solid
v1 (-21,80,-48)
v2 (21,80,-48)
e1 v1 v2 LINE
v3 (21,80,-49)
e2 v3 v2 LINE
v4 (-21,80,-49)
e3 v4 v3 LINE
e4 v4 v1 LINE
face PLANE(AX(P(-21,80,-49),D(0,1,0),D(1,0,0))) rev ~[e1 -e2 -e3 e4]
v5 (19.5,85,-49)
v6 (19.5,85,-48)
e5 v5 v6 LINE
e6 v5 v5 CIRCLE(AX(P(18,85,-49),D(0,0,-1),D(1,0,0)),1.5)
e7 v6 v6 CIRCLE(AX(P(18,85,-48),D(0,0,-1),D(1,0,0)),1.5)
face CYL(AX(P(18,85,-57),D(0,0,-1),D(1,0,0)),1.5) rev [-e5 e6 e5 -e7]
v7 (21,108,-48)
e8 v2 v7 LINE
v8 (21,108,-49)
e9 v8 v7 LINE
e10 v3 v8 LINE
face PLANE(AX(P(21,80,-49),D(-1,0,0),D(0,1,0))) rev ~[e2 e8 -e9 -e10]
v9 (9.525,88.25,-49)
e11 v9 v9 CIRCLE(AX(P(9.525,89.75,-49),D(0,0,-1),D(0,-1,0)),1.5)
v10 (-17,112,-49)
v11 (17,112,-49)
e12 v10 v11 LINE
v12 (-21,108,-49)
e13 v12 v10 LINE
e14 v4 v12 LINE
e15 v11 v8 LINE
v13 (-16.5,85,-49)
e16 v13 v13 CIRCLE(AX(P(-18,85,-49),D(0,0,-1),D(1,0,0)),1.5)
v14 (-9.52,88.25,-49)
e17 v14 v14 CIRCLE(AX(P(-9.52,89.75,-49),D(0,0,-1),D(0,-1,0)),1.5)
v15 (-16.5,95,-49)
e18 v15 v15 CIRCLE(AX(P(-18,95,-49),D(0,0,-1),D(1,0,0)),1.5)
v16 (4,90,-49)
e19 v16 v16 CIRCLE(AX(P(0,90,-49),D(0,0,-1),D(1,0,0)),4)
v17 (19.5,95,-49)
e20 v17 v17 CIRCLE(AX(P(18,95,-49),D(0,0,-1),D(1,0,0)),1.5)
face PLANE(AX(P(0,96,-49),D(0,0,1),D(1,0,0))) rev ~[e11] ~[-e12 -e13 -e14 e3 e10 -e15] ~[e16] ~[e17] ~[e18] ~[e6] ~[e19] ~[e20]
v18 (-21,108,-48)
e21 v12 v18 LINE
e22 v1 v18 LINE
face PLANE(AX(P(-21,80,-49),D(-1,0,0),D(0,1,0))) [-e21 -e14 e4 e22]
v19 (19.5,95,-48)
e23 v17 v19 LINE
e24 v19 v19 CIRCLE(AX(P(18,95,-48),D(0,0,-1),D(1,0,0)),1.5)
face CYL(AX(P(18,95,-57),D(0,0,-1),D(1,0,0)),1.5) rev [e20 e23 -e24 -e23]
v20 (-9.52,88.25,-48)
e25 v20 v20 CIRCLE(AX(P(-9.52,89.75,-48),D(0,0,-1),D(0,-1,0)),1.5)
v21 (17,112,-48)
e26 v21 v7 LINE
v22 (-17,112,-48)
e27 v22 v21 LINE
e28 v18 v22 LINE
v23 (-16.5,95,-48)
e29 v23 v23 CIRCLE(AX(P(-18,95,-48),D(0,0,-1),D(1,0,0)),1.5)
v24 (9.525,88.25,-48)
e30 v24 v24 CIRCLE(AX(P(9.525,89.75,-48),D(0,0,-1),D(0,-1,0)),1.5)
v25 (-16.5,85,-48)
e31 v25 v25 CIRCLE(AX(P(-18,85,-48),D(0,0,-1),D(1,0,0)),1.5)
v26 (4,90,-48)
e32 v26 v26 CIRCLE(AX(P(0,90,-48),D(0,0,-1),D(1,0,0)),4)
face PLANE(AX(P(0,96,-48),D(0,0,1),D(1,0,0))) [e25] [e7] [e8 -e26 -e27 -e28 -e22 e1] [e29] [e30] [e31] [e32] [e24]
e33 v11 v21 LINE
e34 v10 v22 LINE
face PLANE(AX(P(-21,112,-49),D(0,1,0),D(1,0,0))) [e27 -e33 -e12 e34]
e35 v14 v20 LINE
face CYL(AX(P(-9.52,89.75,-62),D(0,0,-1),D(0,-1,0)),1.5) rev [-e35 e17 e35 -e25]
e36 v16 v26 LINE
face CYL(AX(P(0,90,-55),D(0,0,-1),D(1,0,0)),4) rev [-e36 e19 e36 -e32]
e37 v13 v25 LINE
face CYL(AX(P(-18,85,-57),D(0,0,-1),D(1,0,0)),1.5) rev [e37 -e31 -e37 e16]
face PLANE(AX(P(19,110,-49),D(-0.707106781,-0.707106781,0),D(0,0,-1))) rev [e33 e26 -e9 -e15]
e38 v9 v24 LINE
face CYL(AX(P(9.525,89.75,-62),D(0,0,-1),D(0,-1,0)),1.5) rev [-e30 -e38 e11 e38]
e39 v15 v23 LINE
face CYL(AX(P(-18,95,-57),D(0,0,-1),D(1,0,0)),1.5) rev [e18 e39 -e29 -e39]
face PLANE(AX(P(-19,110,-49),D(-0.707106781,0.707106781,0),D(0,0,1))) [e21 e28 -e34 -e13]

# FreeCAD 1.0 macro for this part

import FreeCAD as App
import Part
import Sketcher
Q = App.Units.Quantity


def edges_at(feature, points):
    """Names of the edges that pass closest to the given points."""
    edges = feature.Shape.Edges
    near = lambda p: min(range(len(edges)), key=lambda i: edges[i].distToShape(Part.Vertex(*p))[0])
    return sorted({f"Edge{near(p) + 1}" for p in points})

doc = App.newDocument("Part")
body = doc.addObject("PartDesign::Body", "Body")

sketch1 = body.newObject("Sketcher::SketchObject", "Sketch")
sketch1.AttachmentSupport = (doc.getObject("XZ_Plane"), [""])
sketch1.MapMode = "FlatFace"
sketch1.AttachmentOffset = App.Placement(App.Vector(0, 0, -114), App.Rotation())
sketch1.addGeometry(Part.Circle(App.Vector(15.75, 58.525, 0), App.Vector(0, 0, 1), 1.5), False)
sketch1.addConstraint(Sketcher.Constraint("Diameter", 0, Q("3 mm")))
sketch1.addConstraint(Sketcher.Constraint("DistanceX", -1, 1, 0, 3, Q("15.75 mm")))
sketch1.addConstraint(Sketcher.Constraint("DistanceY", -1, 1, 0, 3, Q("58.525 mm")))
pad1 = body.newObject("PartDesign::Pad", "Pad")
pad1.Profile = sketch1
pad1.Length = 20
pad1.Reversed = True
body2 = doc.addObject("PartDesign::Body", "Body001")
body2.AllowCompound = True

sketch2 = body2.newObject("Sketcher::SketchObject", "Sketch001")
sketch2.AttachmentSupport = (doc.getObject("XZ_Plane001"), [""])
sketch2.MapMode = "FlatFace"
sketch2.AttachmentOffset = App.Placement(App.Vector(0, 0, -114), App.Rotation())
sketch2.addGeometry(Part.Circle(App.Vector(15.75, 39.48, 0), App.Vector(0, 0, 1), 1.5), False)
sketch2.addConstraint(Sketcher.Constraint("Diameter", 0, Q("3 mm")))
sketch2.addConstraint(Sketcher.Constraint("DistanceX", -1, 1, 0, 3, Q("15.75 mm")))
sketch2.addConstraint(Sketcher.Constraint("DistanceY", -1, 1, 0, 3, Q("39.48 mm")))
pad2 = body2.newObject("PartDesign::Pad", "Pad001")
pad2.Profile = sketch2
pad2.Length = 20
pad2.Reversed = True
doc.recompute()

boolean = body2.newObject("PartDesign::Boolean", "Boolean")
boolean.Type = "Fuse"
boolean.addObjects([body])
body3 = doc.addObject("PartDesign::Body", "Body002")
body3.AllowCompound = True
doc.recompute()

body2.Placement = App.Placement(App.Vector(0, 0, 0), App.Rotation(App.Vector(1, 0, 0), 90))
boolean2 = body3.newObject("PartDesign::Boolean", "Boolean001")
boolean2.Type = "Fuse"
boolean2.addObjects([body2])
body4 = doc.addObject("PartDesign::Body", "Body003")
body4.AllowCompound = True
doc.recompute()

body3.Placement = App.Placement(App.Vector(-49, 0, -96), App.Rotation(App.Vector(0, 0, 1), 90))
boolean3 = body4.newObject("PartDesign::Boolean", "Boolean002")
boolean3.Type = "Fuse"
boolean3.addObjects([body3])
body5 = doc.addObject("PartDesign::Body", "Body004")
body5.AllowCompound = True
doc.recompute()

body4.Placement = App.Placement(App.Vector(0, 74, -80), App.Rotation(App.Vector(0, 0, 1), 0))
boolean4 = body5.newObject("PartDesign::Boolean", "Boolean003")
boolean4.Type = "Fuse"
boolean4.addObjects([body4])
body6 = doc.addObject("PartDesign::Body", "Body005")

sketch3 = body6.newObject("Sketcher::SketchObject", "Sketch002")
sketch3.AttachmentSupport = (doc.getObject("XY_Plane005"), [""])
sketch3.MapMode = "FlatFace"
sketch3.AttachmentOffset = App.Placement(App.Vector(0, 0, -57), App.Rotation())
sketch3.addGeometry(Part.Circle(App.Vector(18, 85, 0), App.Vector(0, 0, 1), 1.5), False)
sketch3.addConstraint(Sketcher.Constraint("Diameter", 0, Q("3 mm")))
sketch3.addConstraint(Sketcher.Constraint("DistanceX", -1, 1, 0, 3, Q("18 mm")))
sketch3.addConstraint(Sketcher.Constraint("DistanceY", -1, 1, 0, 3, Q("85 mm")))
pad3 = body6.newObject("PartDesign::Pad", "Pad002")
pad3.Profile = sketch3
pad3.Length = 60
body7 = doc.addObject("PartDesign::Body", "Body006")

sketch4 = body7.newObject("Sketcher::SketchObject", "Sketch003")
sketch4.AttachmentSupport = (doc.getObject("XY_Plane006"), [""])
sketch4.MapMode = "FlatFace"
sketch4.AttachmentOffset = App.Placement(App.Vector(0, 0, -57), App.Rotation())
sketch4.addGeometry(Part.Circle(App.Vector(-18, 85, 0), App.Vector(0, 0, 1), 1.5), False)
sketch4.addConstraint(Sketcher.Constraint("Diameter", 0, Q("3 mm")))
sketch4.addConstraint(Sketcher.Constraint("DistanceX", 0, 3, -1, 1, Q("18 mm")))
sketch4.addConstraint(Sketcher.Constraint("DistanceY", -1, 1, 0, 3, Q("85 mm")))
pad4 = body7.newObject("PartDesign::Pad", "Pad003")
pad4.Profile = sketch4
pad4.Length = 60
body8 = doc.addObject("PartDesign::Body", "Body007")

sketch5 = body8.newObject("Sketcher::SketchObject", "Sketch004")
sketch5.AttachmentSupport = (doc.getObject("XY_Plane007"), [""])
sketch5.MapMode = "FlatFace"
sketch5.AttachmentOffset = App.Placement(App.Vector(0, 0, -57), App.Rotation())
sketch5.addGeometry(Part.Circle(App.Vector(-18, 95, 0), App.Vector(0, 0, 1), 1.5), False)
sketch5.addConstraint(Sketcher.Constraint("Diameter", 0, Q("3 mm")))
sketch5.addConstraint(Sketcher.Constraint("DistanceX", 0, 3, -1, 1, Q("18 mm")))
sketch5.addConstraint(Sketcher.Constraint("DistanceY", -1, 1, 0, 3, Q("95 mm")))
pad5 = body8.newObject("PartDesign::Pad", "Pad004")
pad5.Profile = sketch5
pad5.Length = 60
body9 = doc.addObject("PartDesign::Body", "Body008")
body9.AllowCompound = True

sketch6 = body9.newObject("Sketcher::SketchObject", "Sketch005")
sketch6.AttachmentSupport = (doc.getObject("XY_Plane008"), [""])
sketch6.MapMode = "FlatFace"
sketch6.AttachmentOffset = App.Placement(App.Vector(0, 0, -57), App.Rotation())
sketch6.addGeometry(Part.Circle(App.Vector(18, 95, 0), App.Vector(0, 0, 1), 1.5), False)
sketch6.addConstraint(Sketcher.Constraint("Diameter", 0, Q("3 mm")))
sketch6.addConstraint(Sketcher.Constraint("DistanceX", -1, 1, 0, 3, Q("18 mm")))
sketch6.addConstraint(Sketcher.Constraint("DistanceY", -1, 1, 0, 3, Q("95 mm")))
pad6 = body9.newObject("PartDesign::Pad", "Pad005")
pad6.Profile = sketch6
pad6.Length = 60
doc.recompute()

boolean5 = body9.newObject("PartDesign::Boolean", "Boolean004")
boolean5.Type = "Fuse"
boolean5.addObjects([body6])
doc.recompute()

boolean6 = body9.newObject("PartDesign::Boolean", "Boolean005")
boolean6.Type = "Fuse"
boolean6.addObjects([body7])
doc.recompute()

boolean7 = body9.newObject("PartDesign::Boolean", "Boolean006")
boolean7.Type = "Fuse"
boolean7.addObjects([body8])
body10 = doc.addObject("PartDesign::Body", "Body009")

sketch7 = body10.newObject("Sketcher::SketchObject", "Sketch006")
sketch7.AttachmentSupport = (doc.getObject("XY_Plane009"), [""])
sketch7.MapMode = "FlatFace"
sketch7.AttachmentOffset = App.Placement(App.Vector(0, 0, -55), App.Rotation())
sketch7.addGeometry(Part.Circle(App.Vector(0, 90, 0), App.Vector(0, 0, 1), 4), False)
sketch7.addConstraint(Sketcher.Constraint("PointOnObject", 0, 3, -2))
sketch7.addConstraint(Sketcher.Constraint("Diameter", 0, Q("8 mm")))
sketch7.addConstraint(Sketcher.Constraint("DistanceY", -1, 1, 0, 3, Q("90 mm")))
pad7 = body10.newObject("PartDesign::Pad", "Pad006")
pad7.Profile = sketch7
pad7.Length = 48
body11 = doc.addObject("PartDesign::Body", "Body010")

sketch8 = body11.newObject("Sketcher::SketchObject", "Sketch007")
sketch8.AttachmentSupport = (doc.getObject("XY_Plane010"), [""])
sketch8.MapMode = "FlatFace"
sketch8.AttachmentOffset = App.Placement(App.Vector(0, 0, -49), App.Rotation())
sketch8.addGeometry(Part.LineSegment(App.Vector(-21, 112, 0), App.Vector(-21, 80, 0)), False)
sketch8.addGeometry(Part.LineSegment(App.Vector(-21, 80, 0), App.Vector(21, 80, 0)), False)
sketch8.addGeometry(Part.LineSegment(App.Vector(21, 80, 0), App.Vector(21, 112, 0)), False)
sketch8.addGeometry(Part.LineSegment(App.Vector(21, 112, 0), App.Vector(-21, 112, 0)), False)
sketch8.addConstraint(Sketcher.Constraint("Coincident", 0, 2, 1, 1))
sketch8.addConstraint(Sketcher.Constraint("Coincident", 1, 2, 2, 1))
sketch8.addConstraint(Sketcher.Constraint("Coincident", 2, 2, 3, 1))
sketch8.addConstraint(Sketcher.Constraint("Coincident", 3, 2, 0, 1))
sketch8.addConstraint(Sketcher.Constraint("Vertical", 0))
sketch8.addConstraint(Sketcher.Constraint("Horizontal", 1))
sketch8.addConstraint(Sketcher.Constraint("Vertical", 2))
sketch8.addConstraint(Sketcher.Constraint("Horizontal", 3))
sketch8.addConstraint(Sketcher.Constraint("DistanceX", 1, 1, 1, 2, Q("42 mm")))
sketch8.addConstraint(Sketcher.Constraint("DistanceY", 0, 2, 0, 1, Q("32 mm")))
sketch8.addConstraint(Sketcher.Constraint("DistanceX", 0, 2, -1, 1, Q("21 mm")))
sketch8.addConstraint(Sketcher.Constraint("DistanceY", -1, 1, 0, 2, Q("80 mm")))
pad8 = body11.newObject("PartDesign::Pad", "Pad007")
pad8.Profile = sketch8
pad8.Length = 1
doc.recompute()

boolean8 = body11.newObject("PartDesign::Boolean", "Boolean007")
boolean8.Type = "Cut"
boolean8.addObjects([body10])
doc.recompute()

boolean9 = body11.newObject("PartDesign::Boolean", "Boolean008")
boolean9.Type = "Cut"
boolean9.addObjects([body9])
doc.recompute()

boolean10 = body11.newObject("PartDesign::Boolean", "Boolean009")
boolean10.Type = "Cut"
boolean10.addObjects([body5])
doc.recompute()

chamfer = body11.newObject("PartDesign::Chamfer", "Chamfer")
chamfer.Base = (boolean10, edges_at(boolean10, [(-21, 112, -48.5), (21, 112, -48.5)]))
chamfer.Size = 4

doc.recompute()
